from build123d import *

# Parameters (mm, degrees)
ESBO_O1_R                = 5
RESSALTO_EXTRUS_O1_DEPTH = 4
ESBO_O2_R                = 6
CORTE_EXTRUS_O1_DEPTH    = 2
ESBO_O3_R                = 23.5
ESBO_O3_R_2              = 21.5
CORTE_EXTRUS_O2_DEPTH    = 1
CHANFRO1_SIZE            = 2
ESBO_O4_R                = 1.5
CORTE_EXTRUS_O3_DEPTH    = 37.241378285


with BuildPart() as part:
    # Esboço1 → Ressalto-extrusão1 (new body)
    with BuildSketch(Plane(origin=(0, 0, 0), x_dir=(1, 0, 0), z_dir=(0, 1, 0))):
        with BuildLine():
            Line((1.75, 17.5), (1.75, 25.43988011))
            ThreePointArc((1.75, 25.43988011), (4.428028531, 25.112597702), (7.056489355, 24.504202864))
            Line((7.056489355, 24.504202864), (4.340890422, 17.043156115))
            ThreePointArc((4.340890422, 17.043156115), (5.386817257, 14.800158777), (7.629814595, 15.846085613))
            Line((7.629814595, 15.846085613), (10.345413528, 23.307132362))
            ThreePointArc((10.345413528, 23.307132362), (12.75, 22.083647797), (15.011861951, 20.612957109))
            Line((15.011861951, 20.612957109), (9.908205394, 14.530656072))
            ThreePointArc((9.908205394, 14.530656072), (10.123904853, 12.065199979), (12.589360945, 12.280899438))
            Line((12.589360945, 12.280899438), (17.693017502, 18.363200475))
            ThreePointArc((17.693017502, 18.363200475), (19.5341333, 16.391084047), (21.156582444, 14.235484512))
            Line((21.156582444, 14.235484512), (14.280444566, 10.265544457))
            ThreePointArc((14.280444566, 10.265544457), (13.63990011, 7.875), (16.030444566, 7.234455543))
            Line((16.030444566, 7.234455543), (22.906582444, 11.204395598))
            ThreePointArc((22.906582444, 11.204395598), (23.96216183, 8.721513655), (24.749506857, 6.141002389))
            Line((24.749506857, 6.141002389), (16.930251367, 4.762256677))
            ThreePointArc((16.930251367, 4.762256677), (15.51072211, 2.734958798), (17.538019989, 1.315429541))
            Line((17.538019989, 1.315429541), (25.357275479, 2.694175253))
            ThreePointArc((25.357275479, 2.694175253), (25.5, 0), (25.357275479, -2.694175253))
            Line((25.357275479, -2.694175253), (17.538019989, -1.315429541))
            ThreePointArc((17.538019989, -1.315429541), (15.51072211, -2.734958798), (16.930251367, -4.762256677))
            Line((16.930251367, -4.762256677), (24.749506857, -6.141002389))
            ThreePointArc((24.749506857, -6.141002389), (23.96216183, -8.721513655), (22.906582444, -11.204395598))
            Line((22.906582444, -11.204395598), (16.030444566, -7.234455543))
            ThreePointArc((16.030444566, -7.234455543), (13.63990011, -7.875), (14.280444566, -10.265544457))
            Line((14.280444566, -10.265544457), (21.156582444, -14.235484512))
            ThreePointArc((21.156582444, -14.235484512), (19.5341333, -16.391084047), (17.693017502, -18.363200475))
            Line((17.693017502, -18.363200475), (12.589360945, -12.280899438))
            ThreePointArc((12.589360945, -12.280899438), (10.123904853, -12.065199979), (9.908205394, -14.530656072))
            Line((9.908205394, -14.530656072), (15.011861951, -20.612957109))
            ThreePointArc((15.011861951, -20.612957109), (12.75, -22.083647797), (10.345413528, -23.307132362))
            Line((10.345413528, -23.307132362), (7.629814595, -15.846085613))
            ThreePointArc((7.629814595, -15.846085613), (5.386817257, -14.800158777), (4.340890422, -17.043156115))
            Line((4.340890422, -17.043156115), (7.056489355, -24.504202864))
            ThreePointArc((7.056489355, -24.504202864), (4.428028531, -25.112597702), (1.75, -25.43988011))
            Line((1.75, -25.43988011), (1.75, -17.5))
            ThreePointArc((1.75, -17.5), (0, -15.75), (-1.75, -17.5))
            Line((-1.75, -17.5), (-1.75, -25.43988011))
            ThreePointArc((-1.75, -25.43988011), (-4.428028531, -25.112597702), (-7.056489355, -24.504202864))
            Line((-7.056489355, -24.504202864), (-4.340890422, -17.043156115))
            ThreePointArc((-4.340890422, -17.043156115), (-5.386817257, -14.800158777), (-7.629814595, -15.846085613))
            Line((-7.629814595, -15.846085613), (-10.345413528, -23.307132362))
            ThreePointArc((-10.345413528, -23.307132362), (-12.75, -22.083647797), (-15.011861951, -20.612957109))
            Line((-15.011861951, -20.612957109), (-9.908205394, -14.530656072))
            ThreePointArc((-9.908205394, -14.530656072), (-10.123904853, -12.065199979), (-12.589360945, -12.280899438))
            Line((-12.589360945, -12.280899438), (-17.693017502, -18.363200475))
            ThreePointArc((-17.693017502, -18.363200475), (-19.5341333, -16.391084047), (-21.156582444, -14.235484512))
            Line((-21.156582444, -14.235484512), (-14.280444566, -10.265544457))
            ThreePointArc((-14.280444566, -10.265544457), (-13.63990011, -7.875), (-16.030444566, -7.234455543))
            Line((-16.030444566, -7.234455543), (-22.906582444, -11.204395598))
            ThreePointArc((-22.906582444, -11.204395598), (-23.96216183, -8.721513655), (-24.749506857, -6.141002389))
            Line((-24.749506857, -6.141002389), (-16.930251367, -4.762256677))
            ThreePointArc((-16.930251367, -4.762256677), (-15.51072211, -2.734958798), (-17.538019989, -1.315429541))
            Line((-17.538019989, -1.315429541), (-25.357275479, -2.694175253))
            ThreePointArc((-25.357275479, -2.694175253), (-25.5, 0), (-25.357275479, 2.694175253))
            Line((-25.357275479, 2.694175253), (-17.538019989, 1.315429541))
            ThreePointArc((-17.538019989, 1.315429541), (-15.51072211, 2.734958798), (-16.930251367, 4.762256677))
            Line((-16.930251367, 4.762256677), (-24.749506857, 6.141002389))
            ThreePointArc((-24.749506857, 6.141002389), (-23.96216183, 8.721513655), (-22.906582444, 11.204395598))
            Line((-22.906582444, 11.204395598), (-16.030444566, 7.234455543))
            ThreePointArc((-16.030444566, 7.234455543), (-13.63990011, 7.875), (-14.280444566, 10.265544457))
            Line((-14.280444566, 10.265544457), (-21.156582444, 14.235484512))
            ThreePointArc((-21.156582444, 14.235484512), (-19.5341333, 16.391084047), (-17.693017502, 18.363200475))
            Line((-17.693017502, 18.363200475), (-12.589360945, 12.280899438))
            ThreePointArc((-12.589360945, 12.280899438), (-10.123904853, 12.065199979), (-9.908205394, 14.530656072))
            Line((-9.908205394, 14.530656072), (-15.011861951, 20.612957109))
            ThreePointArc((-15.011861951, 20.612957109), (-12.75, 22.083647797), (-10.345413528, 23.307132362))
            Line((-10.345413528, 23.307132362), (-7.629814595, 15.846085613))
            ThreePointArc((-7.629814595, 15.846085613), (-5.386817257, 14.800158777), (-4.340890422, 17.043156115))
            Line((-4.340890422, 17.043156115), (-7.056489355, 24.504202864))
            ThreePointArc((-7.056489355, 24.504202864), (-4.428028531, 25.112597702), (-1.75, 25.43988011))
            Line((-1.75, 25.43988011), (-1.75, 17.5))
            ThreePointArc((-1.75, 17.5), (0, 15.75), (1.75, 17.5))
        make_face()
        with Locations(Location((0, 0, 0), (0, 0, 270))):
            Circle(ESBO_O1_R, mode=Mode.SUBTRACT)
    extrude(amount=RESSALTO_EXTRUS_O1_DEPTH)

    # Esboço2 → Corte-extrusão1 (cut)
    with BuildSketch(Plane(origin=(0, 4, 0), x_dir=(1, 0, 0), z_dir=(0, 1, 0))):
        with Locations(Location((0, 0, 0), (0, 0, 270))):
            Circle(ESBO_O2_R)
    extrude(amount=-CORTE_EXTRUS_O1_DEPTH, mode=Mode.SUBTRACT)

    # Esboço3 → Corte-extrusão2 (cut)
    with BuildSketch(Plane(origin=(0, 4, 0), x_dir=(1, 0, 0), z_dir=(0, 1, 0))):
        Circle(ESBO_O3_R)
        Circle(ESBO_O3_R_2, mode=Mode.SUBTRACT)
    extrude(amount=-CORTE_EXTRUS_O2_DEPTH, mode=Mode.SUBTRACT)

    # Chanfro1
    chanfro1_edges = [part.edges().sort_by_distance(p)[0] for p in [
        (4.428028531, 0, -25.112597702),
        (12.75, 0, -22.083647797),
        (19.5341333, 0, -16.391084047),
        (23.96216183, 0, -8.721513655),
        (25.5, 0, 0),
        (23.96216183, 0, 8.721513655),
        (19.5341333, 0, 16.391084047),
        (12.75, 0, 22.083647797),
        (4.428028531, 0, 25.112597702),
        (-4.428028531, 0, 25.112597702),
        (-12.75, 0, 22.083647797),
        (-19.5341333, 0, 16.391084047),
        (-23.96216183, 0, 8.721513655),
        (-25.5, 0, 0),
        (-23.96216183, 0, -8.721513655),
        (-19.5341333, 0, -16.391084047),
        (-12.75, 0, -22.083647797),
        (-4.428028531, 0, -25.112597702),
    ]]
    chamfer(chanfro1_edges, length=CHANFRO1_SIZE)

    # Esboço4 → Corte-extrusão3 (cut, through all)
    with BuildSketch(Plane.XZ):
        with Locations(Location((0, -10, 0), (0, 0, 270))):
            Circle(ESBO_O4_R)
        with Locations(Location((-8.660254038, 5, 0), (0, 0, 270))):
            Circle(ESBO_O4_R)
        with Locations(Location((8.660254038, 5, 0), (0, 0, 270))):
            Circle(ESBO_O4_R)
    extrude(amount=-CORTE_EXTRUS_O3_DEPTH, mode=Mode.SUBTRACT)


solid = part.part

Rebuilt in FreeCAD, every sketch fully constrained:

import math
import FreeCAD as App
import Part
import Sketcher

V = App.Vector
Q = App.Units.Quantity


def edges_at(feature, points):
    """Names of the edges that pass closest to the given points."""
    edges = feature.Shape.Edges
    near = lambda p: min(range(len(edges)), key=lambda i: edges[i].distToShape(Part.Vertex(*p))[0])
    return sorted({f"Edge{near(p) + 1}" for p in points})

doc = App.newDocument("Part")
body = doc.addObject("PartDesign::Body", "Body")

sketch1 = body.newObject("Sketcher::SketchObject", "Sketch")
sketch1.AttachmentSupport = (doc.getObject("XZ_Plane"), [""])
sketch1.MapMode = "FlatFace"
sketch1.addGeometry(Part.LineSegment(V(1.75, -25.43988, 0), V(1.75, -17.5, 0)), False)
sketch1.addGeometry(Part.ArcOfCircle(Part.Circle(V(0, -17.5, 0), V(0, 0, 1), 1.75), math.radians(0), math.radians(180)), False)
sketch1.addGeometry(Part.LineSegment(V(-1.75, -17.5, 0), V(-1.75, -25.43988, 0)), False)
sketch1.addGeometry(Part.ArcOfCircle(Part.Circle(V(0, 0, 0), V(0, 0, 1), 25.5), math.radians(-106.064844), math.radians(-93.935156)), False)
sketch1.addGeometry(Part.LineSegment(V(-7.056489, -24.504203, 0), V(-4.34089, -17.043156, 0)), False)
sketch1.addGeometry(Part.ArcOfCircle(Part.Circle(V(-5.985353, -16.444621, 0), V(0, 0, 1), 1.75), math.radians(-20), math.radians(160)), False)
sketch1.addGeometry(Part.LineSegment(V(-7.629815, -15.846086, 0), V(-10.345414, -23.307132, 0)), False)
sketch1.addGeometry(Part.ArcOfCircle(Part.Circle(V(0, 0, 0), V(0, 0, 1), 25.5), math.radians(-126.064844), math.radians(-113.935156)), False)
sketch1.addGeometry(Part.LineSegment(V(-15.011862, -20.612957, 0), V(-9.908205, -14.530656, 0)), False)
sketch1.addGeometry(Part.ArcOfCircle(Part.Circle(V(-11.248783, -13.405778, 0), V(0, 0, 1), 1.75), math.radians(-40), math.radians(140)), False)
sketch1.addGeometry(Part.LineSegment(V(-12.589361, -12.280899, 0), V(-17.693018, -18.3632, 0)), False)
sketch1.addGeometry(Part.ArcOfCircle(Part.Circle(V(0, 0, 0), V(0, 0, 1), 25.5), math.radians(-146.064844), math.radians(-133.935156)), False)
sketch1.addGeometry(Part.LineSegment(V(-21.156582, -14.235485, 0), V(-14.280445, -10.265544, 0)), False)
sketch1.addGeometry(Part.ArcOfCircle(Part.Circle(V(-15.155445, -8.75, 0), V(0, 0, 1), 1.75), math.radians(-60), math.radians(120)), False)
sketch1.addGeometry(Part.LineSegment(V(-16.030445, -7.234456, 0), V(-22.906582, -11.204396, 0)), False)
sketch1.addGeometry(Part.ArcOfCircle(Part.Circle(V(0, 0, 0), V(0, 0, 1), 25.5), math.radians(-166.064844), math.radians(-153.935156)), False)
sketch1.addGeometry(Part.LineSegment(V(-24.749507, -6.141002, 0), V(-16.930251, -4.762257, 0)), False)
sketch1.addGeometry(Part.ArcOfCircle(Part.Circle(V(-17.234136, -3.038843, 0), V(0, 0, 1), 1.75), math.radians(-80), math.radians(100)), False)
sketch1.addGeometry(Part.LineSegment(V(-17.53802, -1.31543, 0), V(-25.357275, -2.694175, 0)), False)
sketch1.addGeometry(Part.ArcOfCircle(Part.Circle(V(0, 0, 0), V(0, 0, 1), 25.5), math.radians(173.935156), math.radians(186.064844)), False)
sketch1.addGeometry(Part.LineSegment(V(-25.357275, 2.694175, 0), V(-17.53802, 1.31543, 0)), False)
sketch1.addGeometry(Part.ArcOfCircle(Part.Circle(V(-17.234136, 3.038843, 0), V(0, 0, 1), 1.75), math.radians(-100), math.radians(80)), False)
sketch1.addGeometry(Part.LineSegment(V(-16.930251, 4.762257, 0), V(-24.749507, 6.141002, 0)), False)
sketch1.addGeometry(Part.ArcOfCircle(Part.Circle(V(0, 0, 0), V(0, 0, 1), 25.5), math.radians(153.935156), math.radians(166.064844)), False)
sketch1.addGeometry(Part.LineSegment(V(-22.906582, 11.204396, 0), V(-16.030445, 7.234456, 0)), False)
sketch1.addGeometry(Part.ArcOfCircle(Part.Circle(V(-15.155445, 8.75, 0), V(0, 0, 1), 1.75), math.radians(-120), math.radians(60)), False)
sketch1.addGeometry(Part.LineSegment(V(-14.280445, 10.265544, 0), V(-21.156582, 14.235485, 0)), False)
sketch1.addGeometry(Part.ArcOfCircle(Part.Circle(V(0, 0, 0), V(0, 0, 1), 25.5), math.radians(133.935156), math.radians(146.064844)), False)
sketch1.addGeometry(Part.LineSegment(V(-17.693018, 18.3632, 0), V(-12.589361, 12.280899, 0)), False)
sketch1.addGeometry(Part.ArcOfCircle(Part.Circle(V(-11.248783, 13.405778, 0), V(0, 0, 1), 1.75), math.radians(-140), math.radians(40)), False)
sketch1.addGeometry(Part.LineSegment(V(-9.908205, 14.530656, 0), V(-15.011862, 20.612957, 0)), False)
sketch1.addGeometry(Part.ArcOfCircle(Part.Circle(V(0, 0, 0), V(0, 0, 1), 25.5), math.radians(113.935156), math.radians(126.064844)), False)
sketch1.addGeometry(Part.LineSegment(V(-10.345414, 23.307132, 0), V(-7.629815, 15.846086, 0)), False)
sketch1.addGeometry(Part.ArcOfCircle(Part.Circle(V(-5.985353, 16.444621, 0), V(0, 0, 1), 1.75), math.radians(-160), math.radians(20)), False)
sketch1.addGeometry(Part.LineSegment(V(-4.34089, 17.043156, 0), V(-7.056489, 24.504203, 0)), False)
sketch1.addGeometry(Part.ArcOfCircle(Part.Circle(V(0, 0, 0), V(0, 0, 1), 25.5), math.radians(93.935156), math.radians(106.064844)), False)
sketch1.addGeometry(Part.LineSegment(V(-1.75, 25.43988, 0), V(-1.75, 17.5, 0)), False)
sketch1.addGeometry(Part.ArcOfCircle(Part.Circle(V(0, 17.5, 0), V(0, 0, 1), 1.75), math.radians(180), math.radians(360)), False)
sketch1.addGeometry(Part.LineSegment(V(1.75, 17.5, 0), V(1.75, 25.43988, 0)), False)
sketch1.addGeometry(Part.ArcOfCircle(Part.Circle(V(0, 0, 0), V(0, 0, 1), 25.5), math.radians(73.935156), math.radians(86.064844)), False)
sketch1.addGeometry(Part.LineSegment(V(7.056489, 24.504203, 0), V(4.34089, 17.043156, 0)), False)
sketch1.addGeometry(Part.ArcOfCircle(Part.Circle(V(5.985353, 16.444621, 0), V(0, 0, 1), 1.75), math.radians(160), math.radians(340)), False)
sketch1.addGeometry(Part.LineSegment(V(7.629815, 15.846086, 0), V(10.345414, 23.307132, 0)), False)
sketch1.addGeometry(Part.ArcOfCircle(Part.Circle(V(0, 0, 0), V(0, 0, 1), 25.5), math.radians(53.935156), math.radians(66.064844)), False)
sketch1.addGeometry(Part.LineSegment(V(15.011862, 20.612957, 0), V(9.908205, 14.530656, 0)), False)
sketch1.addGeometry(Part.ArcOfCircle(Part.Circle(V(11.248783, 13.405778, 0), V(0, 0, 1), 1.75), math.radians(140), math.radians(320)), False)
sketch1.addGeometry(Part.LineSegment(V(12.589361, 12.280899, 0), V(17.693018, 18.3632, 0)), False)
sketch1.addGeometry(Part.ArcOfCircle(Part.Circle(V(0, 0, 0), V(0, 0, 1), 25.5), math.radians(33.935156), math.radians(46.064844)), False)
sketch1.addGeometry(Part.LineSegment(V(21.156582, 14.235485, 0), V(14.280445, 10.265544, 0)), False)
sketch1.addGeometry(Part.ArcOfCircle(Part.Circle(V(15.155445, 8.75, 0), V(0, 0, 1), 1.75), math.radians(120), math.radians(300)), False)
sketch1.addGeometry(Part.LineSegment(V(16.030445, 7.234456, 0), V(22.906582, 11.204396, 0)), False)
sketch1.addGeometry(Part.ArcOfCircle(Part.Circle(V(0, 0, 0), V(0, 0, 1), 25.5), math.radians(13.935156), math.radians(26.064844)), False)
sketch1.addGeometry(Part.LineSegment(V(24.749507, 6.141002, 0), V(16.930251, 4.762257, 0)), False)
sketch1.addGeometry(Part.ArcOfCircle(Part.Circle(V(17.234136, 3.038843, 0), V(0, 0, 1), 1.75), math.radians(100), math.radians(280)), False)
sketch1.addGeometry(Part.LineSegment(V(17.53802, 1.31543, 0), V(25.357275, 2.694175, 0)), False)
sketch1.addGeometry(Part.ArcOfCircle(Part.Circle(V(0, 0, 0), V(0, 0, 1), 25.5), math.radians(-6.064844), math.radians(6.064844)), False)
sketch1.addGeometry(Part.LineSegment(V(25.357275, -2.694175, 0), V(17.53802, -1.31543, 0)), False)
sketch1.addGeometry(Part.ArcOfCircle(Part.Circle(V(17.234136, -3.038843, 0), V(0, 0, 1), 1.75), math.radians(80), math.radians(260)), False)
sketch1.addGeometry(Part.LineSegment(V(16.930251, -4.762257, 0), V(24.749507, -6.141002, 0)), False)
sketch1.addGeometry(Part.ArcOfCircle(Part.Circle(V(0, 0, 0), V(0, 0, 1), 25.5), math.radians(-26.064844), math.radians(-13.935156)), False)
sketch1.addGeometry(Part.LineSegment(V(22.906582, -11.204396, 0), V(16.030445, -7.234456, 0)), False)
sketch1.addGeometry(Part.ArcOfCircle(Part.Circle(V(15.155445, -8.75, 0), V(0, 0, 1), 1.75), math.radians(60), math.radians(240)), False)
sketch1.addGeometry(Part.LineSegment(V(14.280445, -10.265544, 0), V(21.156582, -14.235485, 0)), False)
sketch1.addGeometry(Part.ArcOfCircle(Part.Circle(V(0, 0, 0), V(0, 0, 1), 25.5), math.radians(-46.064844), math.radians(-33.935156)), False)
sketch1.addGeometry(Part.LineSegment(V(17.693018, -18.3632, 0), V(12.589361, -12.280899, 0)), False)
sketch1.addGeometry(Part.ArcOfCircle(Part.Circle(V(11.248783, -13.405778, 0), V(0, 0, 1), 1.75), math.radians(40), math.radians(220)), False)
sketch1.addGeometry(Part.LineSegment(V(9.908205, -14.530656, 0), V(15.011862, -20.612957, 0)), False)
sketch1.addGeometry(Part.ArcOfCircle(Part.Circle(V(0, 0, 0), V(0, 0, 1), 25.5), math.radians(-66.064844), math.radians(-53.935156)), False)
sketch1.addGeometry(Part.LineSegment(V(10.345414, -23.307132, 0), V(7.629815, -15.846086, 0)), False)
sketch1.addGeometry(Part.ArcOfCircle(Part.Circle(V(5.985353, -16.444621, 0), V(0, 0, 1), 1.75), math.radians(20), math.radians(200)), False)
sketch1.addGeometry(Part.LineSegment(V(4.34089, -17.043156, 0), V(7.056489, -24.504203, 0)), False)
sketch1.addGeometry(Part.ArcOfCircle(Part.Circle(V(0, 0, 0), V(0, 0, 1), 25.5), math.radians(-86.064844), math.radians(-73.935156)), False)
sketch1.addGeometry(Part.Circle(V(0, 0, 0), V(0, 0, 1), 5), False)
sketch1.addConstraint(Sketcher.Constraint("Tangent", 0, 2, 1, 1))
sketch1.addConstraint(Sketcher.Constraint("Tangent", 1, 2, 2, 1))
sketch1.addConstraint(Sketcher.Constraint("Coincident", 2, 2, 3, 2))
sketch1.addConstraint(Sketcher.Constraint("Coincident", 3, 1, 4, 1))
sketch1.addConstraint(Sketcher.Constraint("Tangent", 4, 2, 5, 1))
sketch1.addConstraint(Sketcher.Constraint("Tangent", 5, 2, 6, 1))
sketch1.addConstraint(Sketcher.Constraint("Coincident", 6, 2, 7, 2))
sketch1.addConstraint(Sketcher.Constraint("Coincident", 7, 1, 8, 1))
sketch1.addConstraint(Sketcher.Constraint("Tangent", 8, 2, 9, 1))
sketch1.addConstraint(Sketcher.Constraint("Tangent", 9, 2, 10, 1))
sketch1.addConstraint(Sketcher.Constraint("Coincident", 10, 2, 11, 2))
sketch1.addConstraint(Sketcher.Constraint("Coincident", 11, 1, 12, 1))
sketch1.addConstraint(Sketcher.Constraint("Tangent", 12, 2, 13, 1))
sketch1.addConstraint(Sketcher.Constraint("Tangent", 13, 2, 14, 1))
sketch1.addConstraint(Sketcher.Constraint("Coincident", 14, 2, 15, 2))
sketch1.addConstraint(Sketcher.Constraint("Coincident", 15, 1, 16, 1))
sketch1.addConstraint(Sketcher.Constraint("Tangent", 16, 2, 17, 1))
sketch1.addConstraint(Sketcher.Constraint("Tangent", 17, 2, 18, 1))
sketch1.addConstraint(Sketcher.Constraint("Coincident", 18, 2, 19, 2))
sketch1.addConstraint(Sketcher.Constraint("Coincident", 19, 1, 20, 1))
sketch1.addConstraint(Sketcher.Constraint("Tangent", 20, 2, 21, 1))
sketch1.addConstraint(Sketcher.Constraint("Tangent", 21, 2, 22, 1))
sketch1.addConstraint(Sketcher.Constraint("Coincident", 22, 2, 23, 2))
sketch1.addConstraint(Sketcher.Constraint("Coincident", 23, 1, 24, 1))
sketch1.addConstraint(Sketcher.Constraint("Tangent", 24, 2, 25, 1))
sketch1.addConstraint(Sketcher.Constraint("Tangent", 25, 2, 26, 1))
sketch1.addConstraint(Sketcher.Constraint("Coincident", 26, 2, 27, 2))
sketch1.addConstraint(Sketcher.Constraint("Coincident", 27, 1, 28, 1))
sketch1.addConstraint(Sketcher.Constraint("Tangent", 28, 2, 29, 1))
sketch1.addConstraint(Sketcher.Constraint("Tangent", 29, 2, 30, 1))
sketch1.addConstraint(Sketcher.Constraint("Coincident", 30, 2, 31, 2))
sketch1.addConstraint(Sketcher.Constraint("Coincident", 31, 1, 32, 1))
sketch1.addConstraint(Sketcher.Constraint("Tangent", 32, 2, 33, 1))
sketch1.addConstraint(Sketcher.Constraint("Tangent", 33, 2, 34, 1))
sketch1.addConstraint(Sketcher.Constraint("Coincident", 34, 2, 35, 2))
sketch1.addConstraint(Sketcher.Constraint("Coincident", 35, 1, 36, 1))
sketch1.addConstraint(Sketcher.Constraint("Tangent", 36, 2, 37, 1))
sketch1.addConstraint(Sketcher.Constraint("Tangent", 37, 2, 38, 1))
sketch1.addConstraint(Sketcher.Constraint("Coincident", 38, 2, 39, 2))
sketch1.addConstraint(Sketcher.Constraint("Coincident", 39, 1, 40, 1))
sketch1.addConstraint(Sketcher.Constraint("Tangent", 40, 2, 41, 1))
sketch1.addConstraint(Sketcher.Constraint("Tangent", 41, 2, 42, 1))
sketch1.addConstraint(Sketcher.Constraint("Coincident", 42, 2, 43, 2))
sketch1.addConstraint(Sketcher.Constraint("Coincident", 43, 1, 44, 1))
sketch1.addConstraint(Sketcher.Constraint("Tangent", 44, 2, 45, 1))
sketch1.addConstraint(Sketcher.Constraint("Tangent", 45, 2, 46, 1))
sketch1.addConstraint(Sketcher.Constraint("Coincident", 46, 2, 47, 2))
sketch1.addConstraint(Sketcher.Constraint("Coincident", 47, 1, 48, 1))
sketch1.addConstraint(Sketcher.Constraint("Tangent", 48, 2, 49, 1))
sketch1.addConstraint(Sketcher.Constraint("Tangent", 49, 2, 50, 1))
sketch1.addConstraint(Sketcher.Constraint("Coincident", 50, 2, 51, 2))
sketch1.addConstraint(Sketcher.Constraint("Coincident", 51, 1, 52, 1))
sketch1.addConstraint(Sketcher.Constraint("Tangent", 52, 2, 53, 1))
sketch1.addConstraint(Sketcher.Constraint("Tangent", 53, 2, 54, 1))
sketch1.addConstraint(Sketcher.Constraint("Coincident", 54, 2, 55, 2))
sketch1.addConstraint(Sketcher.Constraint("Coincident", 55, 1, 56, 1))
sketch1.addConstraint(Sketcher.Constraint("Tangent", 56, 2, 57, 1))
sketch1.addConstraint(Sketcher.Constraint("Tangent", 57, 2, 58, 1))
sketch1.addConstraint(Sketcher.Constraint("Coincident", 58, 2, 59, 2))
sketch1.addConstraint(Sketcher.Constraint("Coincident", 59, 1, 60, 1))
sketch1.addConstraint(Sketcher.Constraint("Tangent", 60, 2, 61, 1))
sketch1.addConstraint(Sketcher.Constraint("Tangent", 61, 2, 62, 1))
sketch1.addConstraint(Sketcher.Constraint("Coincident", 62, 2, 63, 2))
sketch1.addConstraint(Sketcher.Constraint("Coincident", 63, 1, 64, 1))
sketch1.addConstraint(Sketcher.Constraint("Tangent", 64, 2, 65, 1))
sketch1.addConstraint(Sketcher.Constraint("Tangent", 65, 2, 66, 1))
sketch1.addConstraint(Sketcher.Constraint("Coincident", 66, 2, 67, 2))
sketch1.addConstraint(Sketcher.Constraint("Coincident", 67, 1, 68, 1))
sketch1.addConstraint(Sketcher.Constraint("Tangent", 68, 2, 69, 1))
sketch1.addConstraint(Sketcher.Constraint("Tangent", 69, 2, 70, 1))
sketch1.addConstraint(Sketcher.Constraint("Coincident", 70, 2, 71, 2))
sketch1.addConstraint(Sketcher.Constraint("Coincident", 71, 1, 0, 1))
sketch1.addConstraint(Sketcher.Constraint("Vertical", 0))
sketch1.addConstraint(Sketcher.Constraint("Vertical", 2))
sketch1.addConstraint(Sketcher.Constraint("Vertical", 36))
sketch1.addConstraint(Sketcher.Constraint("Vertical", 38))
sketch1.addConstraint(Sketcher.Constraint("Coincident", 3, 3, -1, 1))
sketch1.addConstraint(Sketcher.Constraint("Coincident", 7, 3, -1, 1))
sketch1.addConstraint(Sketcher.Constraint("Coincident", 11, 3, -1, 1))
sketch1.addConstraint(Sketcher.Constraint("Coincident", 15, 3, -1, 1))
sketch1.addConstraint(Sketcher.Constraint("Coincident", 19, 3, -1, 1))
sketch1.addConstraint(Sketcher.Constraint("Coincident", 23, 3, -1, 1))
sketch1.addConstraint(Sketcher.Constraint("Coincident", 27, 3, -1, 1))
sketch1.addConstraint(Sketcher.Constraint("Coincident", 31, 3, -1, 1))
sketch1.addConstraint(Sketcher.Constraint("Coincident", 35, 3, -1, 1))
sketch1.addConstraint(Sketcher.Constraint("Coincident", 39, 3, -1, 1))
sketch1.addConstraint(Sketcher.Constraint("Coincident", 43, 3, -1, 1))
sketch1.addConstraint(Sketcher.Constraint("Coincident", 47, 3, -1, 1))
sketch1.addConstraint(Sketcher.Constraint("Coincident", 51, 3, -1, 1))
sketch1.addConstraint(Sketcher.Constraint("Coincident", 55, 3, -1, 1))
sketch1.addConstraint(Sketcher.Constraint("Coincident", 59, 3, -1, 1))
sketch1.addConstraint(Sketcher.Constraint("Coincident", 63, 3, -1, 1))
sketch1.addConstraint(Sketcher.Constraint("Coincident", 67, 3, -1, 1))
sketch1.addConstraint(Sketcher.Constraint("Coincident", 71, 3, -1, 1))
sketch1.addConstraint(Sketcher.Constraint("Coincident", 72, 3, -1, 1))
sketch1.addConstraint(Sketcher.Constraint("Equal", 1, 5))
sketch1.addConstraint(Sketcher.Constraint("Equal", 3, 7))
sketch1.addConstraint(Sketcher.Constraint("Equal", 5, 9))
sketch1.addConstraint(Sketcher.Constraint("Equal", 7, 11))
sketch1.addConstraint(Sketcher.Constraint("Equal", 9, 13))
sketch1.addConstraint(Sketcher.Constraint("Equal", 11, 15))
sketch1.addConstraint(Sketcher.Constraint("Equal", 13, 17))
sketch1.addConstraint(Sketcher.Constraint("Equal", 15, 19))
sketch1.addConstraint(Sketcher.Constraint("Equal", 17, 21))
sketch1.addConstraint(Sketcher.Constraint("Equal", 19, 23))
sketch1.addConstraint(Sketcher.Constraint("Equal", 21, 25))
sketch1.addConstraint(Sketcher.Constraint("Equal", 23, 27))
sketch1.addConstraint(Sketcher.Constraint("Equal", 25, 29))
sketch1.addConstraint(Sketcher.Constraint("Equal", 27, 31))
sketch1.addConstraint(Sketcher.Constraint("Equal", 29, 33))
sketch1.addConstraint(Sketcher.Constraint("Equal", 31, 35))
sketch1.addConstraint(Sketcher.Constraint("Equal", 33, 37))
sketch1.addConstraint(Sketcher.Constraint("Equal", 35, 39))
sketch1.addConstraint(Sketcher.Constraint("Equal", 37, 41))
sketch1.addConstraint(Sketcher.Constraint("Equal", 39, 43))
sketch1.addConstraint(Sketcher.Constraint("Equal", 41, 45))
sketch1.addConstraint(Sketcher.Constraint("Equal", 43, 47))
sketch1.addConstraint(Sketcher.Constraint("Equal", 45, 49))
sketch1.addConstraint(Sketcher.Constraint("Equal", 47, 51))
sketch1.addConstraint(Sketcher.Constraint("Equal", 49, 53))
sketch1.addConstraint(Sketcher.Constraint("Equal", 51, 55))
sketch1.addConstraint(Sketcher.Constraint("Equal", 53, 57))
sketch1.addConstraint(Sketcher.Constraint("Equal", 55, 59))
sketch1.addConstraint(Sketcher.Constraint("Equal", 57, 61))
sketch1.addConstraint(Sketcher.Constraint("Equal", 59, 63))
sketch1.addConstraint(Sketcher.Constraint("Equal", 61, 65))
sketch1.addConstraint(Sketcher.Constraint("Equal", 63, 67))
sketch1.addConstraint(Sketcher.Constraint("Equal", 65, 69))
sketch1.addConstraint(Sketcher.Constraint("Equal", 67, 71))
sketch1.addConstraint(Sketcher.Constraint("Symmetric", 1, 3, 37, 3, -1, 1))
sketch1.addConstraint(Sketcher.Constraint("Symmetric", 5, 3, 41, 3, -1, 1))
sketch1.addConstraint(Sketcher.Constraint("Symmetric", 9, 3, 45, 3, -1, 1))
sketch1.addConstraint(Sketcher.Constraint("Symmetric", 13, 3, 49, 3, -1, 1))
sketch1.addConstraint(Sketcher.Constraint("Symmetric", 17, 3, 53, 3, -1, 1))
sketch1.addConstraint(Sketcher.Constraint("Symmetric", 21, 3, 57, 3, -1, 1))
sketch1.addConstraint(Sketcher.Constraint("Symmetric", 25, 3, 61, 3, -1, 1))
sketch1.addConstraint(Sketcher.Constraint("Symmetric", 29, 3, 65, 3, -1, 1))
sketch1.addConstraint(Sketcher.Constraint("Symmetric", 33, 3, 69, 3, -1, 1))
sketch1.addConstraint(Sketcher.Constraint("Symmetric", 33, 3, 41, 3, -2))
sketch1.addConstraint(Sketcher.Constraint("Symmetric", 29, 3, 45, 3, -2))
sketch1.addConstraint(Sketcher.Constraint("Symmetric", 25, 3, 49, 3, -2))
sketch1.addConstraint(Sketcher.Constraint("Symmetric", 21, 3, 53, 3, -2))
sketch1.addConstraint(Sketcher.Constraint("PointOnObject", 1, 3, -2))
sketch1.addConstraint(Sketcher.Constraint("Parallel", 4, 6))
sketch1.addConstraint(Sketcher.Constraint("Parallel", 8, 10))
sketch1.addConstraint(Sketcher.Constraint("Parallel", 12, 14))
sketch1.addConstraint(Sketcher.Constraint("Parallel", 16, 18))
sketch1.addConstraint(Sketcher.Constraint("Parallel", 20, 22))
sketch1.addConstraint(Sketcher.Constraint("Parallel", 24, 26))
sketch1.addConstraint(Sketcher.Constraint("Parallel", 28, 30))
sketch1.addConstraint(Sketcher.Constraint("Parallel", 32, 34))
sketch1.addConstraint(Sketcher.Constraint("Parallel", 6, 40))
sketch1.addConstraint(Sketcher.Constraint("Parallel", 40, 42))
sketch1.addConstraint(Sketcher.Constraint("Parallel", 10, 44))
sketch1.addConstraint(Sketcher.Constraint("Parallel", 44, 46))
sketch1.addConstraint(Sketcher.Constraint("Parallel", 14, 48))
sketch1.addConstraint(Sketcher.Constraint("Parallel", 48, 50))
sketch1.addConstraint(Sketcher.Constraint("Parallel", 18, 52))
sketch1.addConstraint(Sketcher.Constraint("Parallel", 52, 54))
sketch1.addConstraint(Sketcher.Constraint("Parallel", 22, 56))
sketch1.addConstraint(Sketcher.Constraint("Parallel", 56, 58))
sketch1.addConstraint(Sketcher.Constraint("Parallel", 26, 60))
sketch1.addConstraint(Sketcher.Constraint("Parallel", 60, 62))
sketch1.addConstraint(Sketcher.Constraint("Parallel", 30, 64))
sketch1.addConstraint(Sketcher.Constraint("Parallel", 64, 66))
sketch1.addConstraint(Sketcher.Constraint("Parallel", 34, 68))
sketch1.addConstraint(Sketcher.Constraint("Parallel", 68, 70))
sketch1.addConstraint(Sketcher.Constraint("Horizontal", 34, 2, 39, 1))
sketch1.addConstraint(Sketcher.Constraint("Horizontal", 30, 2, 43, 1))
sketch1.addConstraint(Sketcher.Constraint("Horizontal", 26, 2, 47, 1))
sketch1.addConstraint(Sketcher.Constraint("Horizontal", 22, 2, 51, 1))
sketch1.addConstraint(Sketcher.Constraint("Equal", 4, 6))
sketch1.addConstraint(Sketcher.Constraint("Equal", 6, 8))
sketch1.addConstraint(Sketcher.Constraint("Equal", 8, 10))
sketch1.addConstraint(Sketcher.Constraint("Equal", 10, 12))
sketch1.addConstraint(Sketcher.Constraint("Equal", 12, 14))
sketch1.addConstraint(Sketcher.Constraint("Equal", 14, 16))
sketch1.addConstraint(Sketcher.Constraint("Equal", 16, 18))
sketch1.addConstraint(Sketcher.Constraint("Diameter", 72, Q("10 mm")))
sketch1.addConstraint(Sketcher.Constraint("Radius", 3, Q("25.5 mm")))
sketch1.addConstraint(Sketcher.Constraint("Angle", 4, Q("70 deg")))
sketch1.addConstraint(Sketcher.Constraint("Angle", 8, Q("50 deg")))
sketch1.addConstraint(Sketcher.Constraint("Angle", 12, Q("30 deg")))
sketch1.addConstraint(Sketcher.Constraint("Angle", 16, Q("10 deg")))
sketch1.addConstraint(Sketcher.Constraint("Radius", 1, Q("1.75 mm")))
sketch1.addConstraint(Sketcher.Constraint("DistanceY", 1, 3, -1, 1, Q("17.5 mm")))
sketch1.addConstraint(Sketcher.Constraint("DistanceY", 13, 3, -1, 1, Q("8.75 mm")))
pad1 = body.newObject("PartDesign::Pad", "Pad")
pad1.Profile = sketch1
pad1.Length = 4
pad1.Reversed = True

sketch2 = body.newObject("Sketcher::SketchObject", "Sketch001")
sketch2.AttachmentSupport = (doc.getObject("XZ_Plane"), [""])
sketch2.MapMode = "FlatFace"
sketch2.AttachmentOffset = App.Placement(V(0, 0, -4), App.Rotation())
sketch2.addGeometry(Part.Circle(V(0, 0, 0), V(0, 0, 1), 6), False)
sketch2.addConstraint(Sketcher.Constraint("Coincident", 0, 3, -1, 1))
sketch2.addConstraint(Sketcher.Constraint("Diameter", 0, Q("12 mm")))
pocket1 = body.newObject("PartDesign::Pocket", "Pocket")
pocket1.Profile = sketch2
pocket1.Length = 2
pocket1.Reversed = True

sketch3 = body.newObject("Sketcher::SketchObject", "Sketch002")
sketch3.AttachmentSupport = (doc.getObject("XZ_Plane"), [""])
sketch3.MapMode = "FlatFace"
sketch3.AttachmentOffset = App.Placement(V(0, 0, -4), App.Rotation())
sketch3.addGeometry(Part.Circle(V(0, 0, 0), V(0, 0, 1), 23.5), False)
sketch3.addGeometry(Part.Circle(V(0, 0, 0), V(0, 0, 1), 21.5), False)
sketch3.addConstraint(Sketcher.Constraint("Coincident", 0, 3, -1, 1))
sketch3.addConstraint(Sketcher.Constraint("Coincident", 1, 3, -1, 1))
sketch3.addConstraint(Sketcher.Constraint("Diameter", 0, Q("47 mm")))
sketch3.addConstraint(Sketcher.Constraint("Diameter", 1, Q("43 mm")))
pocket2 = body.newObject("PartDesign::Pocket", "Pocket001")
pocket2.Profile = sketch3
pocket2.Length = 1
pocket2.Reversed = True
doc.recompute()

chamfer = body.newObject("PartDesign::Chamfer", "Chamfer")
chamfer.Base = (pocket2, edges_at(pocket2, [
    (4.428, 0, -25.113),
    (12.75, 0, -22.084),
    (19.534, 0, -16.391),
    (23.962, 0, -8.722),
    (25.5, 0, 0),
    (23.962, 0, 8.722),
    (19.534, 0, 16.391),
    (12.75, 0, 22.084),
    (4.428, 0, 25.113),
    (-4.428, 0, 25.113),
    (-12.75, 0, 22.084),
    (-19.534, 0, 16.391),
    (-23.962, 0, 8.722),
    (-25.5, 0, 0),
    (-23.962, 0, -8.722),
    (-19.534, 0, -16.391),
    (-12.75, 0, -22.084),
    (-4.428, 0, -25.113),
]))
chamfer.Size = 2

sketch4 = body.newObject("Sketcher::SketchObject", "Sketch003")
sketch4.AttachmentSupport = (doc.getObject("XZ_Plane"), [""])
sketch4.MapMode = "FlatFace"
sketch4.addGeometry(Part.Circle(V(0, -10, 0), V(0, 0, 1), 1.5), False)
sketch4.addGeometry(Part.Circle(V(-8.660254, 5, 0), V(0, 0, 1), 1.5), False)
sketch4.addGeometry(Part.Circle(V(8.660254, 5, 0), V(0, 0, 1), 1.5), False)
sketch4.addConstraint(Sketcher.Constraint("Equal", 0, 1))
sketch4.addConstraint(Sketcher.Constraint("Equal", 1, 2))
sketch4.addConstraint(Sketcher.Constraint("Symmetric", 1, 3, 2, 3, -2))
sketch4.addConstraint(Sketcher.Constraint("PointOnObject", 0, 3, -2))
sketch4.addConstraint(Sketcher.Constraint("Diameter", 0, Q("3 mm")))
sketch4.addConstraint(Sketcher.Constraint("DistanceY", 0, 3, -1, 1, Q("10 mm")))
sketch4.addConstraint(Sketcher.Constraint("DistanceY", -1, 1, 1, 3, Q("5 mm")))
sketch4.addConstraint(Sketcher.Constraint("DistanceX", 1, 3, 2, 3, Q("17.320508 mm")))
pocket3 = body.newObject("PartDesign::Pocket", "Pocket002")
pocket3.Profile = sketch4
pocket3.Type = "ThroughAll"

doc.recompute()
